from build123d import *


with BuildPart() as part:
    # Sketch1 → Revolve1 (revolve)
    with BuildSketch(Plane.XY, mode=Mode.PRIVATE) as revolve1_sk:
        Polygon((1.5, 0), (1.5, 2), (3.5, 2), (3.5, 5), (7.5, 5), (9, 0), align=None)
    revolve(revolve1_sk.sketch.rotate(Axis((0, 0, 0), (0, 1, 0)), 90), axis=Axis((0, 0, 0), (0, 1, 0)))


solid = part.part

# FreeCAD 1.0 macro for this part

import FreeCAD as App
import Part
import Sketcher
Q = App.Units.Quantity

doc = App.newDocument("Part")
body = doc.addObject("PartDesign::Body", "Body")

# Sketch on XY plane
sketch1 = body.newObject("Sketcher::SketchObject", "Sketch")
sketch1.AttachmentSupport = (doc.getObject("XY_Plane"), [""])
sketch1.MapMode = "FlatFace"
sketch1.addGeometry([
    Part.LineSegment(App.Vector(1.5, 2, 0), App.Vector(1.5, 0, 0)),  # 0
    Part.LineSegment(App.Vector(1.5, 0, 0), App.Vector(9, 0, 0)),  # 1
    Part.LineSegment(App.Vector(9, 0, 0), App.Vector(7.5, 5, 0)),  # 2
    Part.LineSegment(App.Vector(7.5, 5, 0), App.Vector(3.5, 5, 0)),  # 3
    Part.LineSegment(App.Vector(3.5, 5, 0), App.Vector(3.5, 2, 0)),  # 4
    Part.LineSegment(App.Vector(3.5, 2, 0), App.Vector(1.5, 2, 0)),  # 5
], False)
sketch1.addConstraint([
    Sketcher.Constraint("Coincident", 0, 2, 1, 1),
    Sketcher.Constraint("Coincident", 1, 2, 2, 1),
    Sketcher.Constraint("Coincident", 2, 2, 3, 1),
    Sketcher.Constraint("Coincident", 3, 2, 4, 1),
    Sketcher.Constraint("Coincident", 4, 2, 5, 1),
    Sketcher.Constraint("Coincident", 5, 2, 0, 1),
    Sketcher.Constraint("Vertical", 0),
    Sketcher.Constraint("Horizontal", 1),
    Sketcher.Constraint("Horizontal", 3),
    Sketcher.Constraint("Vertical", 4),
    Sketcher.Constraint("Horizontal", 5),
    Sketcher.Constraint("PointOnObject", 0, 2, -1),
    Sketcher.Constraint("Equal", 5, 0),
    Sketcher.Constraint("DistanceX", 3, 2, 3, 1, Q("4 mm")),
    Sketcher.Constraint("DistanceX", 5, 2, 5, 1, Q("2 mm")),
    Sketcher.Constraint("DistanceY", 4, 2, 4, 1, Q("3 mm")),
    Sketcher.Constraint("DistanceX", 1, 1, 1, 2, Q("7.5 mm")),
    Sketcher.Constraint("DistanceX", -1, 1, 1, 2, Q("9 mm")),
])
revolution = body.newObject("PartDesign::Revolution", "Revolution")
revolution.Profile = sketch1
revolution.ReferenceAxis = (sketch1, ["V_Axis"])
revolution.Angle = 360

doc.recompute()
